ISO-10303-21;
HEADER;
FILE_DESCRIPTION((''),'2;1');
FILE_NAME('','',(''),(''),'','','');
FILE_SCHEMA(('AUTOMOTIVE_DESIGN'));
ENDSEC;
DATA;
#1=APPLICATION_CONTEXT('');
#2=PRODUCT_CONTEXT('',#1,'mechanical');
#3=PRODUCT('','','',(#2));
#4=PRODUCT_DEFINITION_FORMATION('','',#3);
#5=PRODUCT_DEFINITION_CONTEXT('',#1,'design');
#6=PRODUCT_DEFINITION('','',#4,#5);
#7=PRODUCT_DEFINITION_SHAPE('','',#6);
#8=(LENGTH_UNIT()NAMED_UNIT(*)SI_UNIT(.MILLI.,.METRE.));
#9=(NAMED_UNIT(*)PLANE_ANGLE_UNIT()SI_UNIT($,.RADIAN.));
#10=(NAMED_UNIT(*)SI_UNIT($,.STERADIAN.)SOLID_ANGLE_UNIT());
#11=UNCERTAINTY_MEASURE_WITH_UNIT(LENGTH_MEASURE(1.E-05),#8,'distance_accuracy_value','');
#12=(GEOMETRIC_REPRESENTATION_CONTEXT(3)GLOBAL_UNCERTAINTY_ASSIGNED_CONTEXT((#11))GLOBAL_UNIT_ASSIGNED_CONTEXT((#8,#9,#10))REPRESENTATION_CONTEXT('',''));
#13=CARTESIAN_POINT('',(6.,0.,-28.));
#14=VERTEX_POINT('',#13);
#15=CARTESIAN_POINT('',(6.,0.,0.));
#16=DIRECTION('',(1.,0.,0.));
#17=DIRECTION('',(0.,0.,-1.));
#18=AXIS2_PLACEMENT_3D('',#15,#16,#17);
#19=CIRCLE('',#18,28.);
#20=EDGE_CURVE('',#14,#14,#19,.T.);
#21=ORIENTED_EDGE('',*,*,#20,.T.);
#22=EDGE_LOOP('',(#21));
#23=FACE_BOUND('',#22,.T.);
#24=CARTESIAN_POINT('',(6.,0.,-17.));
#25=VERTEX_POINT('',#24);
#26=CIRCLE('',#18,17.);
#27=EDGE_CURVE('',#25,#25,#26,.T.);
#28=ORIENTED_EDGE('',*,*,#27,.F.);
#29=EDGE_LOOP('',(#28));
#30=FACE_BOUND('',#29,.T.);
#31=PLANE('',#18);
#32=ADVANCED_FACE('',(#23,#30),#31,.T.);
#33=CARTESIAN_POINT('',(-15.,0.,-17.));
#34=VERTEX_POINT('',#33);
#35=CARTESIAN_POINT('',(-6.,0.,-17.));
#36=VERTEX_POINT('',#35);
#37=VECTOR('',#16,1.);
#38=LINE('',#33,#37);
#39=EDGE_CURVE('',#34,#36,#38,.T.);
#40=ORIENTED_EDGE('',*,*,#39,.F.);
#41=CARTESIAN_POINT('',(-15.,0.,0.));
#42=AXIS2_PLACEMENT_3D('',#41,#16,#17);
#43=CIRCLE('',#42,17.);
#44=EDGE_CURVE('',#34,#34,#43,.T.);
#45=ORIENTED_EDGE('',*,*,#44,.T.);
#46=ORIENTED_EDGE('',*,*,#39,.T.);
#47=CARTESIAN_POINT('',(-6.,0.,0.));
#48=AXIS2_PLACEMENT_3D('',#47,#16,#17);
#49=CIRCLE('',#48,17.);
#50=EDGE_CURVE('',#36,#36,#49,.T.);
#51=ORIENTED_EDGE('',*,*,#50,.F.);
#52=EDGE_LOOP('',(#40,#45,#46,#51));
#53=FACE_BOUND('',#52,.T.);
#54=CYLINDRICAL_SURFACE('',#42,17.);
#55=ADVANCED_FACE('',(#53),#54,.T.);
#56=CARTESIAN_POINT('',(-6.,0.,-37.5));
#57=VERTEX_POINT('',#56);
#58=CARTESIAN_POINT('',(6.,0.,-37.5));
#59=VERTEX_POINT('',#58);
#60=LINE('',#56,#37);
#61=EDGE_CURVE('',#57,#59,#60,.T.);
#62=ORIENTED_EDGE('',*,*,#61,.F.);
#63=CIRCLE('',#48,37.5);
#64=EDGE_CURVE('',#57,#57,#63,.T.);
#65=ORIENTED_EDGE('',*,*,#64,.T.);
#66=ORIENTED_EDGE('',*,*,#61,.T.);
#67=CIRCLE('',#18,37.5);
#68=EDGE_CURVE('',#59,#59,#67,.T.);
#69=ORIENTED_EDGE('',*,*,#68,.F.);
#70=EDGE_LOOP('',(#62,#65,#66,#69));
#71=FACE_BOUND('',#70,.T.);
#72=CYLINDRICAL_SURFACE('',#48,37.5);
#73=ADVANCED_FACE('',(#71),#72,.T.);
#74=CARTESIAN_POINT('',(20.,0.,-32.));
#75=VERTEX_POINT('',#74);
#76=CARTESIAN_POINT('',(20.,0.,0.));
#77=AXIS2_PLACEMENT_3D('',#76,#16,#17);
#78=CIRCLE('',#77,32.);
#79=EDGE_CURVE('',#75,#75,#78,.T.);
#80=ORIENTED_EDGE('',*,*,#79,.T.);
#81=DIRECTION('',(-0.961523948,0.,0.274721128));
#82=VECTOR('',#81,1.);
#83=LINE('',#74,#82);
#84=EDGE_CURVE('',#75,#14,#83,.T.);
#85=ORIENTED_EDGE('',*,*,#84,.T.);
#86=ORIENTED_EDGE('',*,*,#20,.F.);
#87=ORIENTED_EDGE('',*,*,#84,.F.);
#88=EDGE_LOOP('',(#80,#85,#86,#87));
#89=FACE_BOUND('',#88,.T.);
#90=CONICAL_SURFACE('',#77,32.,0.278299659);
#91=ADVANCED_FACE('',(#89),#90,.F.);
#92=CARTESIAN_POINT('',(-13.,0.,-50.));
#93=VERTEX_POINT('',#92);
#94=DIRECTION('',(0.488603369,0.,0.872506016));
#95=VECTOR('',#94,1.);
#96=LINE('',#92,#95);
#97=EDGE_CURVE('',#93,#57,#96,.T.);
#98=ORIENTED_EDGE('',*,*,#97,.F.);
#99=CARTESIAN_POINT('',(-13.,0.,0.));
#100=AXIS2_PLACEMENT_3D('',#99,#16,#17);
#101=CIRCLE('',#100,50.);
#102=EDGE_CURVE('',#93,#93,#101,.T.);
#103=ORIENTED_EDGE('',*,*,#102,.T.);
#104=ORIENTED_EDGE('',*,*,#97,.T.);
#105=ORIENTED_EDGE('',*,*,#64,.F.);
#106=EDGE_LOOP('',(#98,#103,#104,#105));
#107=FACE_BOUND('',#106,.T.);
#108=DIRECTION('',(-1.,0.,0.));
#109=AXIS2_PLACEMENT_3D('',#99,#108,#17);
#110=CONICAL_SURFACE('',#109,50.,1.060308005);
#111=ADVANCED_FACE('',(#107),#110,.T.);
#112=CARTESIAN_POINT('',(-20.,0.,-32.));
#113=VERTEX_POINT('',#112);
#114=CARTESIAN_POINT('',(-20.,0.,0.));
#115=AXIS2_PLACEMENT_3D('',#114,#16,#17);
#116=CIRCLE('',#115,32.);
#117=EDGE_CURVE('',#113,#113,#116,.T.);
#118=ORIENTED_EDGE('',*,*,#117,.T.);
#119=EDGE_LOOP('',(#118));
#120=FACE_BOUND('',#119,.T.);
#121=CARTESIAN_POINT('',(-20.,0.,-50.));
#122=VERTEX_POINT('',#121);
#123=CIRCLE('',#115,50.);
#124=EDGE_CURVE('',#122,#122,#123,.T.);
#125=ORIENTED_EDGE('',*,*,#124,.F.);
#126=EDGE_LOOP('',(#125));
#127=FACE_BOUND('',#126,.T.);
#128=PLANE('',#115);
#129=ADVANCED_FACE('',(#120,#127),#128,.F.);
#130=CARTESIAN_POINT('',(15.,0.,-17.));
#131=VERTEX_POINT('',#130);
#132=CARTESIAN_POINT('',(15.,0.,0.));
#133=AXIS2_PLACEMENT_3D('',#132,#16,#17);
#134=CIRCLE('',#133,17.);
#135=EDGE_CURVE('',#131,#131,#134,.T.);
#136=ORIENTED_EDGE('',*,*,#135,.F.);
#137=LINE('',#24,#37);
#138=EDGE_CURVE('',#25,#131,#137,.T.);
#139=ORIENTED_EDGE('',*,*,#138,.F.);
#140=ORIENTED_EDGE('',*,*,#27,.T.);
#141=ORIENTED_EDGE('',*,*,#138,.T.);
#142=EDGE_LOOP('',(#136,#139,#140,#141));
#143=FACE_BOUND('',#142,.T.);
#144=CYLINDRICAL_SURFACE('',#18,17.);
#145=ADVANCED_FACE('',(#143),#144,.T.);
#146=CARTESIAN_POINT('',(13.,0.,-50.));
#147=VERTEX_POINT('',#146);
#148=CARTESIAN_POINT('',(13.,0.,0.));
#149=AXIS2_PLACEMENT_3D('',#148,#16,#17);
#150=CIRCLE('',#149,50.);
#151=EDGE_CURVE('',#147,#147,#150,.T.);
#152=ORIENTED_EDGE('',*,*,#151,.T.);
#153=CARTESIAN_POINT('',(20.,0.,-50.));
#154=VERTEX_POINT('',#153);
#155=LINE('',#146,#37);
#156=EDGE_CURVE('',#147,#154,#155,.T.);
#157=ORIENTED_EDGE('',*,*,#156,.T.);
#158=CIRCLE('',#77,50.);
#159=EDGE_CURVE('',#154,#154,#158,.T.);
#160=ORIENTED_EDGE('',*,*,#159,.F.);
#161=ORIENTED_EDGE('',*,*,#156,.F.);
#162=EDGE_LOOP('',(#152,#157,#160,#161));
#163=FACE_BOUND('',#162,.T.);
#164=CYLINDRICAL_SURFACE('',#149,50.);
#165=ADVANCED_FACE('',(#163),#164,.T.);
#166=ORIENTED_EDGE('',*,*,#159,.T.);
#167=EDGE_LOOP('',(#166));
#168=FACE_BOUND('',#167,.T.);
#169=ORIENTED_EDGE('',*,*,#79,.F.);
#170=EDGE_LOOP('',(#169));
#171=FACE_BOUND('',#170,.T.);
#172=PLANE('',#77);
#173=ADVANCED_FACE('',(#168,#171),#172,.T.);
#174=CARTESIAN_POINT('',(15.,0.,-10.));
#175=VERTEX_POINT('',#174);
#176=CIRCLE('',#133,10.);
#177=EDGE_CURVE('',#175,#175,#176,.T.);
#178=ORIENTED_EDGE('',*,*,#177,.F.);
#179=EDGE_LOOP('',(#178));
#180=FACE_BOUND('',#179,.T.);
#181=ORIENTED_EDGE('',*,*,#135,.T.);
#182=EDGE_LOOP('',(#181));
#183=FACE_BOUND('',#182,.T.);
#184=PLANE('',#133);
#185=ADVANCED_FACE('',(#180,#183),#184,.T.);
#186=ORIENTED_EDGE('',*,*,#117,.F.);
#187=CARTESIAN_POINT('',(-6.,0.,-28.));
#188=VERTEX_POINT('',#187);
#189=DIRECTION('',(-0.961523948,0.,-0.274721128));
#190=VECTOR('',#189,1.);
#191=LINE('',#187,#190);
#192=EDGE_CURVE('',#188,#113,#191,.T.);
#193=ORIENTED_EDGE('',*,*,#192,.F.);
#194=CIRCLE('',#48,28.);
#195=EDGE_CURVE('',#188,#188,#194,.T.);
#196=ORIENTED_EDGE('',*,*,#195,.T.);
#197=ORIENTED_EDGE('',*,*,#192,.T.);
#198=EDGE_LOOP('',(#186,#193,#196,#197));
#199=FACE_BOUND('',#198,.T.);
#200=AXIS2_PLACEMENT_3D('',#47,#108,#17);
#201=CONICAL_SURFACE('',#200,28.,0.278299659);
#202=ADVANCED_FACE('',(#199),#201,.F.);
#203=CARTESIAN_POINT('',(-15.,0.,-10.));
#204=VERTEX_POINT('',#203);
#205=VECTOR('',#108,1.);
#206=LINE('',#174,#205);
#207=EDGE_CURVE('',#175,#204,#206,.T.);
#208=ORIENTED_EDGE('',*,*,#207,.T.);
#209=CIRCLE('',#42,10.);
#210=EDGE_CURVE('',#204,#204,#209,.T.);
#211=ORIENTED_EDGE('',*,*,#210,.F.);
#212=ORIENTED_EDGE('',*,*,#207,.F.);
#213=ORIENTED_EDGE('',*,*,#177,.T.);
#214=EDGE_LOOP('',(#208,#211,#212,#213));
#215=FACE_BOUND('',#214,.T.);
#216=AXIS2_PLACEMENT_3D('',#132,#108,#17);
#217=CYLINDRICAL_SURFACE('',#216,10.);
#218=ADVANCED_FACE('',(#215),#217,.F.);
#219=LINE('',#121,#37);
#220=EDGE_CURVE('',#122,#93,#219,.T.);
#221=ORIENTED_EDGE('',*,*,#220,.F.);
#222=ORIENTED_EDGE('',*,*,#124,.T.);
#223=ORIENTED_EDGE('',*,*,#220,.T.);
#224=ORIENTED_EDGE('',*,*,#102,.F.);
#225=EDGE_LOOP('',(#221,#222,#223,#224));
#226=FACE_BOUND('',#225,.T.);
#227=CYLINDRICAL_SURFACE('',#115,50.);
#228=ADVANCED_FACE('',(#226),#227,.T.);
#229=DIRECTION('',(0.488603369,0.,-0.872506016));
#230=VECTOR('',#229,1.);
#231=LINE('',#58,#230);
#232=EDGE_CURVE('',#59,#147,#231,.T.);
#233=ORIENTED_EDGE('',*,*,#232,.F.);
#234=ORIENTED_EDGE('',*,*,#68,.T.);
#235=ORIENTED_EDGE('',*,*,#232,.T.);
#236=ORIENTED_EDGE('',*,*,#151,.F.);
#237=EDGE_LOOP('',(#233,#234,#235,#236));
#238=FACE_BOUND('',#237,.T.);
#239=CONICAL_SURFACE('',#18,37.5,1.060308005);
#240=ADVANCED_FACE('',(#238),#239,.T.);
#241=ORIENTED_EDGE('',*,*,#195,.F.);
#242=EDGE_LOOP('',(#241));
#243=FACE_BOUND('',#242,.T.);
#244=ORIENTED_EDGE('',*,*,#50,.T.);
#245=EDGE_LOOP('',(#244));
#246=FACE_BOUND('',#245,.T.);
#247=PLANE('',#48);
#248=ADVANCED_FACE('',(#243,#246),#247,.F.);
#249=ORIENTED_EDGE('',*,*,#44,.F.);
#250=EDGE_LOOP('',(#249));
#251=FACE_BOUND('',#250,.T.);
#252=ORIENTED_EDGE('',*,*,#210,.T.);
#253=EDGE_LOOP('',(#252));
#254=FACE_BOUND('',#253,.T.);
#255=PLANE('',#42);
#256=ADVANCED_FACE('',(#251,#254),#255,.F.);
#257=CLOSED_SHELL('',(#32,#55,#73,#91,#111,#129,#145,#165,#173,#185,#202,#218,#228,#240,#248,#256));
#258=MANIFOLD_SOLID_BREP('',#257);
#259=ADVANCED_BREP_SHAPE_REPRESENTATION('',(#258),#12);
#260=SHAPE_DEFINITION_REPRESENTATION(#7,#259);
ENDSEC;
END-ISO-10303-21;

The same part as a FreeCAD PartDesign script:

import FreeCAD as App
import Part
import Sketcher
from FreeCAD import Vector
Q = App.Units.Quantity


def add_polygon(sketch, points):
    """Adds a closed chain of lines whose ends are joined by coincident constraints."""
    first, n = sketch.GeometryCount, len(points)
    for a, b in zip(points, points[1:] + points[:1]):
        sketch.addGeometry(Part.LineSegment(App.Vector(*a, 0), App.Vector(*b, 0)), False)
    for i in range(n):
        sketch.addConstraint(Sketcher.Constraint("Coincident", first + i, 2, first + (i + 1) % n, 1))

doc = App.newDocument("Part")
body = doc.addObject("PartDesign::Body", "Body")

# Sketch on XZ plane
sketch1 = body.newObject("Sketcher::SketchObject", "Sketch")
sketch1.AttachmentSupport = (doc.getObject("XZ_Plane"), [""])
sketch1.MapMode = "FlatFace"
add_polygon(sketch1, [(-15, -10), (-15, -17), (-6, -17), (-6, -28), (-20, -32), (-20, -50), (-13, -50), (-6, -38), (6, -38), (13, -50), (20, -50), (20, -32), (6, -28), (6, -17), (15, -17), (15, -10)])  # lines 0-15
sketch1.addConstraint([
    Sketcher.Constraint("Vertical", 0),
    Sketcher.Constraint("Horizontal", 1),
    Sketcher.Constraint("Vertical", 2),
    Sketcher.Constraint("Vertical", 4),
    Sketcher.Constraint("Horizontal", 5),
    Sketcher.Constraint("Horizontal", 7),
    Sketcher.Constraint("Horizontal", 9),
    Sketcher.Constraint("Vertical", 10),
    Sketcher.Constraint("Vertical", 12),
    Sketcher.Constraint("Horizontal", 13),
    Sketcher.Constraint("Vertical", 14),
    Sketcher.Constraint("Horizontal", 15),
    Sketcher.Constraint("Symmetric", 5, 2, 8, 2, -2),
    Sketcher.Constraint("Symmetric", 3, 2, 10, 2, -2),
    Sketcher.Constraint("Symmetric", 2, 2, 11, 2, -2),
    Sketcher.Constraint("Symmetric", 0, 2, 13, 2, -2),
    Sketcher.Constraint("Vertical", 2, 2, 6, 2),
    Sketcher.Constraint("Vertical", 7, 2, 11, 2),
    Sketcher.Constraint("Equal", 9, 0),
    Sketcher.Constraint("DistanceX", 1, 1, 1, 2, Q("9 mm")),
    Sketcher.Constraint("DistanceX", 5, 1, 5, 2, Q("7 mm")),
    Sketcher.Constraint("DistanceX", 7, 1, 7, 2, Q("12 mm")),
    Sketcher.Constraint("DistanceY", 2, 2, 2, 1, Q("11 mm")),
    Sketcher.Constraint("DistanceY", 4, 2, 4, 1, Q("18 mm")),
    Sketcher.Constraint("DistanceY", 0, 2, -1, 1, Q("17 mm")),
    Sketcher.Constraint("DistanceX", 3, 2, -1, 1, Q("20 mm")),
    Sketcher.Constraint("DistanceY", 3, 2, -1, 1, Q("32 mm")),
    Sketcher.Constraint("DistanceY", 6, 2, -1, 1, Q("37.5 mm")),
])
revolution = body.newObject("PartDesign::Revolution", "Revolution")
revolution.Profile = sketch1
revolution.ReferenceAxis = (sketch1, ["H_Axis"])
revolution.Angle = 360

doc.recompute()
